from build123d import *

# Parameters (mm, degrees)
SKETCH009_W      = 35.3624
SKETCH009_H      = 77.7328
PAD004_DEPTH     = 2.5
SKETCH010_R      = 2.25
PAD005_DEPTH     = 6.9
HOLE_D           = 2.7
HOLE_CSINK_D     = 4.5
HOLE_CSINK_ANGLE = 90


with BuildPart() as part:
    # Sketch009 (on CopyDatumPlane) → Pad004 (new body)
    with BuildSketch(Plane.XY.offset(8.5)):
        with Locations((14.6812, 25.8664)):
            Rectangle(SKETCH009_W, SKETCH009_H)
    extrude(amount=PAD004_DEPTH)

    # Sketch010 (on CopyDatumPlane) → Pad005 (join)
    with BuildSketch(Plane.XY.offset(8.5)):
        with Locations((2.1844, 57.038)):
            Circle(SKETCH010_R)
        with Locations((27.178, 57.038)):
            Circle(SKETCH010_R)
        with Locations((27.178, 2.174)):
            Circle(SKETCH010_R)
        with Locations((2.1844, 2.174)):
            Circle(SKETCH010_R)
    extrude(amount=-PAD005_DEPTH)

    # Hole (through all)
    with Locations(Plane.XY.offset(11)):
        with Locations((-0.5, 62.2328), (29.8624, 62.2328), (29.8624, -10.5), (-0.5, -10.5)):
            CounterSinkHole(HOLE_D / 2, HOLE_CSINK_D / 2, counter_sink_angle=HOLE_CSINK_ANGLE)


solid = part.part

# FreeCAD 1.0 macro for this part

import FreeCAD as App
import Part
import Sketcher

V = App.Vector
Q = App.Units.Quantity


def add_polygon(sketch, points):
    """Adds a closed chain of lines whose ends are joined by coincident constraints."""
    first, n = sketch.GeometryCount, len(points)
    for a, b in zip(points, points[1:] + points[:1]):
        sketch.addGeometry(Part.LineSegment(App.Vector(*a, 0), App.Vector(*b, 0)), False)
    for i in range(n):
        sketch.addConstraint(Sketcher.Constraint("Coincident", first + i, 2, first + (i + 1) % n, 1))

doc = App.newDocument("Part")
body = doc.addObject("PartDesign::Body", "Body")

# Sketch on XY plane
sketch1 = body.newObject("Sketcher::SketchObject", "Sketch")
sketch1.AttachmentSupport = (doc.getObject("XY_Plane"), [""])
sketch1.MapMode = "FlatFace"
sketch1.AttachmentOffset = App.Placement(V(0, 0, 8.5), App.Rotation())
add_polygon(sketch1, [(-3, 64.7328), (-3, -13), (32.3624, -13), (32.3624, 64.7328)])  # lines 0-3
sketch1.addConstraint([
    Sketcher.Constraint("Vertical", 0),
    Sketcher.Constraint("Horizontal", 1),
    Sketcher.Constraint("Vertical", 2),
    Sketcher.Constraint("Horizontal", 3),
    Sketcher.Constraint("DistanceX", 0, 2, -1, 1, Q("3 mm")),
    Sketcher.Constraint("DistanceY", 0, 2, -1, 1, Q("13 mm")),
    Sketcher.Constraint("DistanceX", 1, 1, 1, 2, Q("35.3624 mm")),
    Sketcher.Constraint("DistanceY", 0, 2, 0, 1, Q("77.7328 mm")),
])
pad1 = body.newObject("PartDesign::Pad", "Pad")
pad1.Profile = sketch1
pad1.Length = 2.5

# Sketch on XY plane
sketch2 = body.newObject("Sketcher::SketchObject", "Sketch001")
sketch2.AttachmentSupport = (doc.getObject("XY_Plane"), [""])
sketch2.MapMode = "FlatFace"
sketch2.AttachmentOffset = App.Placement(V(0, 0, 8.5), App.Rotation())
sketch2.addGeometry([
    Part.Circle(V(2.1844, 57.038, 0), V(0, 0, 1), 2.25),
    Part.Circle(V(27.178, 57.038, 0), V(0, 0, 1), 2.25),
    Part.Circle(V(27.178, 2.174, 0), V(0, 0, 1), 2.25),
    Part.Circle(V(2.1844, 2.174, 0), V(0, 0, 1), 2.25),
], False)
sketch2.addConstraint([
    Sketcher.Constraint("Equal", 0, 1),
    Sketcher.Constraint("Equal", 1, 2),
    Sketcher.Constraint("Equal", 2, 3),
    Sketcher.Constraint("Horizontal", 0, 3, 1, 3),
    Sketcher.Constraint("Horizontal", 2, 3, 3, 3),
    Sketcher.Constraint("Vertical", 1, 3, 2, 3),
    Sketcher.Constraint("Vertical", 0, 3, 3, 3),
    Sketcher.Constraint("Diameter", 0, Q("4.5 mm")),
    Sketcher.Constraint("DistanceY", -1, 1, 0, 3, Q("57.038 mm")),
    Sketcher.Constraint("DistanceX", -1, 1, 1, 3, Q("27.178 mm")),
    Sketcher.Constraint("DistanceY", -1, 1, 2, 3, Q("2.174 mm")),
    Sketcher.Constraint("DistanceX", -1, 1, 0, 3, Q("2.1844 mm")),
])
pad2 = body.newObject("PartDesign::Pad", "Pad001")
pad2.Profile = sketch2
pad2.Length = 6.9
pad2.Reversed = True

# Sketch on XY plane
sketch3 = body.newObject("Sketcher::SketchObject", "Sketch002")
sketch3.AttachmentSupport = (doc.getObject("XY_Plane"), [""])
sketch3.MapMode = "FlatFace"
sketch3.AttachmentOffset = App.Placement(V(0, 0, 11), App.Rotation())
sketch3.addGeometry([
    Part.Circle(V(-0.5, 62.2328, 0), V(0, 0, 1), 1.35),
    Part.Circle(V(29.8624, 62.2328, 0), V(0, 0, 1), 1.35),
    Part.Circle(V(29.8624, -10.5, 0), V(0, 0, 1), 1.35),
    Part.Circle(V(-0.5, -10.5, 0), V(0, 0, 1), 1.35),
], False)
sketch3.addConstraint([
    Sketcher.Constraint("Equal", 0, 1),
    Sketcher.Constraint("Equal", 1, 2),
    Sketcher.Constraint("Equal", 2, 3),
    Sketcher.Constraint("Horizontal", 0, 3, 1, 3),
    Sketcher.Constraint("Horizontal", 2, 3, 3, 3),
    Sketcher.Constraint("Vertical", 1, 3, 2, 3),
    Sketcher.Constraint("Vertical", 0, 3, 3, 3),
    Sketcher.Constraint("Diameter", 0, Q("2.7 mm")),
    Sketcher.Constraint("DistanceX", 0, 3, -1, 1, Q("0.5 mm")),
    Sketcher.Constraint("DistanceY", 2, 3, -1, 1, Q("10.5 mm")),
    Sketcher.Constraint("DistanceY", -1, 1, 0, 3, Q("62.2328 mm")),
    Sketcher.Constraint("DistanceX", -1, 1, 1, 3, Q("29.8624 mm")),
])
doc.recompute()
hole = body.newObject("PartDesign::Hole", "Hole")
hole.Profile = sketch3
hole.ThreadType = "None"
hole.Diameter = 2.7
hole.DepthType = "ThroughAll"
hole.HoleCutType = "Countersink"
hole.HoleCutDiameter = 4.5
hole.HoleCutCountersinkAngle = 90

doc.recompute()
